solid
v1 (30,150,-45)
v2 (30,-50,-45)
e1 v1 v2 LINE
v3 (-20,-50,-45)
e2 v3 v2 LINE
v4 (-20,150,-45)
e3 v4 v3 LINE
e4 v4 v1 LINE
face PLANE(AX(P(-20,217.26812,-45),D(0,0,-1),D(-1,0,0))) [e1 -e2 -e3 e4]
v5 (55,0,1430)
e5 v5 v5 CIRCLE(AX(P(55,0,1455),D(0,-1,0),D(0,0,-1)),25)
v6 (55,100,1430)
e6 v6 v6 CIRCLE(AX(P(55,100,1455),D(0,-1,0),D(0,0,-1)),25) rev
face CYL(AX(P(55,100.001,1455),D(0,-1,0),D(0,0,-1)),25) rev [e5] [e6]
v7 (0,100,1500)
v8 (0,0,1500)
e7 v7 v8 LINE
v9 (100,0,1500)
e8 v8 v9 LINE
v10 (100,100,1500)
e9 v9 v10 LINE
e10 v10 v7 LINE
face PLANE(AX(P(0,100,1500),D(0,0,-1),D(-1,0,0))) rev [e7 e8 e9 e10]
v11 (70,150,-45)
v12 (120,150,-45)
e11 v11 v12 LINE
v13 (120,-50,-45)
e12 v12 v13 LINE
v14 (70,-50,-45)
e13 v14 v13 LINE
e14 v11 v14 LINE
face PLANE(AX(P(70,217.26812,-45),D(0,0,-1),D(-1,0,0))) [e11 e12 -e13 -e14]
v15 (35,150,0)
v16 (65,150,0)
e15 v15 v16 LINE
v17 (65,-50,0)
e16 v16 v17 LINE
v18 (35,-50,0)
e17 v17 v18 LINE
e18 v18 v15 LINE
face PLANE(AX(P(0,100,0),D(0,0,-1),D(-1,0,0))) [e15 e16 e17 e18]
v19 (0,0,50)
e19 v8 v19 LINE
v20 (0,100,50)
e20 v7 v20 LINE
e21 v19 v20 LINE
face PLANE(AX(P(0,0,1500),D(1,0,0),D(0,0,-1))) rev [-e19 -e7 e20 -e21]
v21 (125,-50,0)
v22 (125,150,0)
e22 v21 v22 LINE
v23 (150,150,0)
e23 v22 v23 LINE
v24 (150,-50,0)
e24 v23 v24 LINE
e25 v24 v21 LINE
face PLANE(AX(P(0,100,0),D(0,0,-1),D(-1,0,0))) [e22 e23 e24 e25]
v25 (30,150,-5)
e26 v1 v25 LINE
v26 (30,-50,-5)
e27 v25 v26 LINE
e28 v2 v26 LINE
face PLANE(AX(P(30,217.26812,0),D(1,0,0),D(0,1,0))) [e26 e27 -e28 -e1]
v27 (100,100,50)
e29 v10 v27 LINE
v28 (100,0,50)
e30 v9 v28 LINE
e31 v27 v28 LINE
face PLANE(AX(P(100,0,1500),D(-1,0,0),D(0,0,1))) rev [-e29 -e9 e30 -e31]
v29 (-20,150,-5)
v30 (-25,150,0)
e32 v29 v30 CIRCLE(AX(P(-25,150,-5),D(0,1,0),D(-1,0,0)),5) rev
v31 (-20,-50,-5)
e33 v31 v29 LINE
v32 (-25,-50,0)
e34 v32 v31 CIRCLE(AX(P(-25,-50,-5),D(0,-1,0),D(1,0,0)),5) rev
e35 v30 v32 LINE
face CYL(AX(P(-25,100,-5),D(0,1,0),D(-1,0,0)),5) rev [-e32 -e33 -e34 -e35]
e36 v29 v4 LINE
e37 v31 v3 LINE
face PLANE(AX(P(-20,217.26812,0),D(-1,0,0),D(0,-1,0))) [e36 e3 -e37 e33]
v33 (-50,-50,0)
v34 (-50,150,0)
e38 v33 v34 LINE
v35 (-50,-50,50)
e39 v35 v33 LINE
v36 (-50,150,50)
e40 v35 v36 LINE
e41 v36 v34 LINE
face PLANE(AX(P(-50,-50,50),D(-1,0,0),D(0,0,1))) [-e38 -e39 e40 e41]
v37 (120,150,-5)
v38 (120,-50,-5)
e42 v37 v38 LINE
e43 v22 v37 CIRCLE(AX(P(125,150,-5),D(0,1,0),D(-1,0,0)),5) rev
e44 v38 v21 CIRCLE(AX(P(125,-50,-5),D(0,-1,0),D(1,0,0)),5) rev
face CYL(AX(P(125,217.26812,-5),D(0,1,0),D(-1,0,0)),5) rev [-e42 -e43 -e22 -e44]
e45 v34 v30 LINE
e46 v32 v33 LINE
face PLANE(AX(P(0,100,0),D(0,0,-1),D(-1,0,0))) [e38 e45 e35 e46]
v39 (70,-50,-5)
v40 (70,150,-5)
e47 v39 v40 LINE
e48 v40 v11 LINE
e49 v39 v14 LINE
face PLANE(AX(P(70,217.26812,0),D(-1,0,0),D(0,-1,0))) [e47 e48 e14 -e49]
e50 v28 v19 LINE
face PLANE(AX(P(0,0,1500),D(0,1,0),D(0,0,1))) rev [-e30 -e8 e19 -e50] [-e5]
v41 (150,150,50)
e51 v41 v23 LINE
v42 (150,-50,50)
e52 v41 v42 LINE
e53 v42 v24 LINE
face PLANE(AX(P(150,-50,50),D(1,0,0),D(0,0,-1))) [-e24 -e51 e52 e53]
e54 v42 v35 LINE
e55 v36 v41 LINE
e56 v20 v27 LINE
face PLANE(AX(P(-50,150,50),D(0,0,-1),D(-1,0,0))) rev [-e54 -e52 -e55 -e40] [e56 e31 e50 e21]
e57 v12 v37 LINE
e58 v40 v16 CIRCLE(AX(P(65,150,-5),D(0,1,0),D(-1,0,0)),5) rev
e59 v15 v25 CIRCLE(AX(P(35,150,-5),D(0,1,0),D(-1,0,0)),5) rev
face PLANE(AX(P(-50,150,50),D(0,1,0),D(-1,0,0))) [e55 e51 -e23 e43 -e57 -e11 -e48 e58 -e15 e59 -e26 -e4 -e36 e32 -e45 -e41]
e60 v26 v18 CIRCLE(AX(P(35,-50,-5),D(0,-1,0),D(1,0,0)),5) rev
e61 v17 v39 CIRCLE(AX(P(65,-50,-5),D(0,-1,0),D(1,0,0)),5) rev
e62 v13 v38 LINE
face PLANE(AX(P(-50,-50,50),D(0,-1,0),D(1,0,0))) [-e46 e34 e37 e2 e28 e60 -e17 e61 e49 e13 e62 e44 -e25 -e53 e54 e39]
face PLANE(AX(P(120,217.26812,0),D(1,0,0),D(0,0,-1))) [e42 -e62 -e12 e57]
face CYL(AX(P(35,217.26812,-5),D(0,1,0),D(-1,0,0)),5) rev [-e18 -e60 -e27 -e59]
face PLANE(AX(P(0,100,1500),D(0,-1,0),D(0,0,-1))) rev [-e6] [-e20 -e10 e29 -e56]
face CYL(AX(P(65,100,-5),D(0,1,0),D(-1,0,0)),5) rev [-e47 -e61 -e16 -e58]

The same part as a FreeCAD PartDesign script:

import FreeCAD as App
import Part
import Sketcher
from FreeCAD import Vector
Q = App.Units.Quantity


def edges_at(feature, points):
    """Names of the edges that pass closest to the given points."""
    edges = feature.Shape.Edges
    near = lambda p: min(range(len(edges)), key=lambda i: edges[i].distToShape(Part.Vertex(*p))[0])
    return sorted({f"Edge{near(p) + 1}" for p in points})


def add_polygon(sketch, points):
    """Adds a closed chain of lines whose ends are joined by coincident constraints."""
    first, n = sketch.GeometryCount, len(points)
    for a, b in zip(points, points[1:] + points[:1]):
        sketch.addGeometry(Part.LineSegment(App.Vector(*a, 0), App.Vector(*b, 0)), False)
    for i in range(n):
        sketch.addConstraint(Sketcher.Constraint("Coincident", first + i, 2, first + (i + 1) % n, 1))

doc = App.newDocument("Part")
body = doc.addObject("PartDesign::Body", "Body")

# Sketch on XY plane
sketch1 = doc.addObject("Sketcher::SketchObject", "Sketch")
body.addObject(sketch1)
sketch1.AttachmentSupport = (doc.XY_Plane, [""])
sketch1.MapMode = "FlatFace"
add_polygon(sketch1, [(0, 100), (0, 0), (100, 0), (100, 100)])  # lines 0-3
sketch1.addConstraint(Sketcher.Constraint("Vertical", 0))
sketch1.addConstraint(Sketcher.Constraint("Horizontal", 1))
sketch1.addConstraint(Sketcher.Constraint("Vertical", 2))
sketch1.addConstraint(Sketcher.Constraint("Horizontal", 3))
sketch1.addConstraint(Sketcher.Constraint("Coincident", 0, 2, -1, 1))
sketch1.addConstraint(Sketcher.Constraint("Equal", 3, 0))
sketch1.addConstraint(Sketcher.Constraint("DistanceX", 1, 1, 1, 2, Q("100 mm")))
pad1 = doc.addObject("PartDesign::Pad", "Pad")
body.addObject(pad1)
pad1.Profile = sketch1
pad1.Length = 1500

# Sketch on XZ plane
sketch2 = doc.addObject("Sketcher::SketchObject", "Sketch001")
body.addObject(sketch2)
sketch2.AttachmentSupport = (doc.XZ_Plane, [""])
sketch2.MapMode = "FlatFace"
sketch2.addGeometry(Part.Circle(Vector(55, 1455, 0), Vector(0, 0, 1), 25), False)
sketch2.addConstraint(Sketcher.Constraint("Diameter", 0, Q("50 mm")))
sketch2.addConstraint(Sketcher.Constraint("DistanceX", -1, 1, 0, 3, Q("55 mm")))
sketch2.addConstraint(Sketcher.Constraint("DistanceY", -1, 1, 0, 3, Q("1455 mm")))
pocket1 = doc.addObject("PartDesign::Pocket", "Pocket")
body.addObject(pocket1)
pocket1.Profile = sketch2
pocket1.Type = "UpToFirst"

# Sketch on XY plane
sketch3 = doc.addObject("Sketcher::SketchObject", "Sketch002")
body.addObject(sketch3)
sketch3.AttachmentSupport = (doc.XY_Plane, [""])
sketch3.MapMode = "FlatFace"
add_polygon(sketch3, [(150, 150), (150, -50), (-50, -50), (-50, 150)])  # lines 0-3
sketch3.addConstraint(Sketcher.Constraint("Vertical", 0))
sketch3.addConstraint(Sketcher.Constraint("Horizontal", 1))
sketch3.addConstraint(Sketcher.Constraint("Vertical", 2))
sketch3.addConstraint(Sketcher.Constraint("Horizontal", 3))
sketch3.addConstraint(Sketcher.Constraint("Equal", 3, 0))
sketch3.addConstraint(Sketcher.Constraint("DistanceX", 1, 2, 1, 1, Q("200 mm")))
sketch3.addConstraint(Sketcher.Constraint("DistanceX", -1, 1, 0, 2, Q("150 mm")))
sketch3.addConstraint(Sketcher.Constraint("DistanceY", 0, 2, -1, 1, Q("50 mm")))
pad2 = doc.addObject("PartDesign::Pad", "Pad001")
body.addObject(pad2)
pad2.Profile = sketch3
pad2.Length = 50

# Sketch on XZ plane
sketch4 = doc.addObject("Sketcher::SketchObject", "Sketch003")
body.addObject(sketch4)
sketch4.AttachmentSupport = (doc.XZ_Plane, [""])
sketch4.MapMode = "FlatFace"
sketch4.AttachmentOffset = App.Placement(Vector(0, 0, 50), App.Rotation())
add_polygon(sketch4, [(-20, 0), (-20, -45), (30, -45), (30, 0)])  # lines 0-3
add_polygon(sketch4, [(70, 0), (70, -45), (120, -45), (120, 0)])  # lines 4-7
sketch4.addConstraint(Sketcher.Constraint("Vertical", 0))
sketch4.addConstraint(Sketcher.Constraint("Horizontal", 1))
sketch4.addConstraint(Sketcher.Constraint("Vertical", 2))
sketch4.addConstraint(Sketcher.Constraint("Horizontal", 3))
sketch4.addConstraint(Sketcher.Constraint("Vertical", 4))
sketch4.addConstraint(Sketcher.Constraint("Horizontal", 5))
sketch4.addConstraint(Sketcher.Constraint("Vertical", 6))
sketch4.addConstraint(Sketcher.Constraint("Horizontal", 7))
sketch4.addConstraint(Sketcher.Constraint("PointOnObject", 2, 2, -1))
sketch4.addConstraint(Sketcher.Constraint("PointOnObject", 6, 2, -1))
sketch4.addConstraint(Sketcher.Constraint("Horizontal", 1, 2, 4, 2))
sketch4.addConstraint(Sketcher.Constraint("Equal", 3, 5))
sketch4.addConstraint(Sketcher.Constraint("DistanceX", 1, 1, 1, 2, Q("50 mm")))
sketch4.addConstraint(Sketcher.Constraint("DistanceY", 0, 2, 0, 1, Q("45 mm")))
sketch4.addConstraint(Sketcher.Constraint("DistanceX", 0, 2, -1, 1, Q("20 mm")))
sketch4.addConstraint(Sketcher.Constraint("DistanceX", -1, 1, 4, 2, Q("70 mm")))
pad3 = doc.addObject("PartDesign::Pad", "Pad002")
body.addObject(pad3)
pad3.Profile = sketch4
pad3.Length = 200
pad3.Reversed = True
doc.recompute()

fillet = doc.addObject("PartDesign::Fillet", "Fillet")
body.addObject(fillet)
fillet.Base = (pad3, edges_at(pad3, [
    (30, 50, 0),
    (-20, 50, 0),
    (120, 50, 0),
    (70, 50, 0),
]))
fillet.Radius = 5

doc.recompute()
